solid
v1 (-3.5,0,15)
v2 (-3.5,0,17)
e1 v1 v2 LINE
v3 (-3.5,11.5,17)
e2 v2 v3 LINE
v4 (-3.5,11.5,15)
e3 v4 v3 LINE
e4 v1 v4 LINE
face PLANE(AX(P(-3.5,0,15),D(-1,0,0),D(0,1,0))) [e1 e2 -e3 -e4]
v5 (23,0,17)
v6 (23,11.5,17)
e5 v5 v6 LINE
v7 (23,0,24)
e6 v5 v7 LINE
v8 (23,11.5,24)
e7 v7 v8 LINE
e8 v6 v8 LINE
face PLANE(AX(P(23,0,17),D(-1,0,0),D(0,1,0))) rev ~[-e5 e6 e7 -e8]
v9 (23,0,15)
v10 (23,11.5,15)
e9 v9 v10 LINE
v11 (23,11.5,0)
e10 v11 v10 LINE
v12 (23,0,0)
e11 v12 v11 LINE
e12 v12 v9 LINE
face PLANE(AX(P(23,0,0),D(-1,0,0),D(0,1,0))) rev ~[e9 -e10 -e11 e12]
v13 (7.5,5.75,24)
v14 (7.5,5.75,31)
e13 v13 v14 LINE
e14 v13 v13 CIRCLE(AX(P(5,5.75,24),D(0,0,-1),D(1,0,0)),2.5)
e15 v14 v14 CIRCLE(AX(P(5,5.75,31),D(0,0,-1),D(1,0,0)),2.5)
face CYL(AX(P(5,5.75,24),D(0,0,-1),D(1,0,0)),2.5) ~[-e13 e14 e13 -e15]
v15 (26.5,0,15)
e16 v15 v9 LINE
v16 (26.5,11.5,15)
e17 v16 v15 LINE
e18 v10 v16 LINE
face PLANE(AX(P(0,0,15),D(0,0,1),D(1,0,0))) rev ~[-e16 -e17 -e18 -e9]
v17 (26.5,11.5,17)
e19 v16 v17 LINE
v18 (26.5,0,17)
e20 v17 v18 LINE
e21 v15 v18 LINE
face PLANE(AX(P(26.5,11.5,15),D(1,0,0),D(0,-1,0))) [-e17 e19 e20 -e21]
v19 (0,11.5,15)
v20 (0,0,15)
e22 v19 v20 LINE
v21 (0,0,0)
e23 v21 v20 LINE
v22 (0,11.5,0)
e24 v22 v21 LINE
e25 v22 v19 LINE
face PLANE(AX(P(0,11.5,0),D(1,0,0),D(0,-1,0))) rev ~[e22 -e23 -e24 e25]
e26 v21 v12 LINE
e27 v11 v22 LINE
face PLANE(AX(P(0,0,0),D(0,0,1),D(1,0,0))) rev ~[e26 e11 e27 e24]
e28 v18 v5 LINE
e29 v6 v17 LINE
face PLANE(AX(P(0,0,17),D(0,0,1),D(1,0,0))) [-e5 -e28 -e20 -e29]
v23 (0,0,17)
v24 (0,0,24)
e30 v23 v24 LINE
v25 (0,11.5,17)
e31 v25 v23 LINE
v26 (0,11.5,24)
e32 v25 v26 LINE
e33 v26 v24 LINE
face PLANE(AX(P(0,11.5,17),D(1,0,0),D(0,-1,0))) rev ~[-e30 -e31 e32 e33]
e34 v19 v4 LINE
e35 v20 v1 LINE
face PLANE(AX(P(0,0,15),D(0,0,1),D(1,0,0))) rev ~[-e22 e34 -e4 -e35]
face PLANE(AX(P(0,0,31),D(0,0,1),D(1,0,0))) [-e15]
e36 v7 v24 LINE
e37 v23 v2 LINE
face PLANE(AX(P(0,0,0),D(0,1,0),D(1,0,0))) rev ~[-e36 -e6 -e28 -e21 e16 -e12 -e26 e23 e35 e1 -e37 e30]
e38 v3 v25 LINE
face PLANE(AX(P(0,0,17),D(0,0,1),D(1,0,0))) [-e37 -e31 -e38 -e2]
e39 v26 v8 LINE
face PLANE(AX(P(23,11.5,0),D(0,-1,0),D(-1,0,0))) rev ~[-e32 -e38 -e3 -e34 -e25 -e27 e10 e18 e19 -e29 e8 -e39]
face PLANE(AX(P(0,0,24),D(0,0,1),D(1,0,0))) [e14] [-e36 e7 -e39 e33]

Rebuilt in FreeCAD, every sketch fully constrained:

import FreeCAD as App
import Part
import Sketcher
from FreeCAD import Vector
Q = App.Units.Quantity

doc = App.newDocument("Part")
params = doc.addObject("Spreadsheet::Sheet", "Params")
for row, (alias, value) in enumerate([
    ("sketch1_width", "23 mm"),
    ("sketch1_height", "11.5 mm"),
    ("pad1_length", "15 mm"),
    ("sketch2_width", "30 mm"),
    ("sketch2_height", "11.5 mm"),
    ("pad2_length", "2 mm"),
    ("sketch3_width", "23 mm"),
    ("sketch3_height", "11.5 mm"),
    ("pad3_length", "7 mm"),
    ("sketch4_diameter", "5 mm"),
    ("pad4_length", "7 mm"),
], start=1):
    params.set(f"A{row}", alias)
    params.set(f"B{row}", "=" + value)
    params.setAlias(f"B{row}", alias)

body = doc.addObject("PartDesign::Body", "Body")

# Sketch on XY plane
sketch1 = body.newObject("Sketcher::SketchObject", "Sketch")
sketch1.AttachmentSupport = (doc.getObject("XY_Plane"), [""])
sketch1.MapMode = "FlatFace"
sketch1.addGeometry(Part.LineSegment(Vector(0, 11.5, 0), Vector(0, 0, 0)), False)
sketch1.addGeometry(Part.LineSegment(Vector(0, 0, 0), Vector(23, 0, 0)), False)
sketch1.addGeometry(Part.LineSegment(Vector(23, 0, 0), Vector(23, 11.5, 0)), False)
sketch1.addGeometry(Part.LineSegment(Vector(23, 11.5, 0), Vector(0, 11.5, 0)), False)
sketch1.addConstraint(Sketcher.Constraint("Coincident", 0, 2, 1, 1))
sketch1.addConstraint(Sketcher.Constraint("Coincident", 1, 2, 2, 1))
sketch1.addConstraint(Sketcher.Constraint("Coincident", 2, 2, 3, 1))
sketch1.addConstraint(Sketcher.Constraint("Coincident", 3, 2, 0, 1))
sketch1.addConstraint(Sketcher.Constraint("Vertical", 0))
sketch1.addConstraint(Sketcher.Constraint("Horizontal", 1))
sketch1.addConstraint(Sketcher.Constraint("Vertical", 2))
sketch1.addConstraint(Sketcher.Constraint("Horizontal", 3))
sketch1.addConstraint(Sketcher.Constraint("Coincident", 0, 2, -1, 1))
sketch1.addConstraint(Sketcher.Constraint("DistanceX", 1, 1, 1, 2, Q("23 mm")))
sketch1.addConstraint(Sketcher.Constraint("DistanceY", 0, 2, 0, 1, Q("11.5 mm")))
sketch1.setExpression("Constraints[9]", "Params.sketch1_width")
sketch1.setExpression("Constraints[10]", "Params.sketch1_height")
pad1 = body.newObject("PartDesign::Pad", "Pad")
pad1.Profile = sketch1
pad1.setExpression("Length", "Params.pad1_length")

# Sketch on XY plane
sketch2 = body.newObject("Sketcher::SketchObject", "Sketch001")
sketch2.AttachmentSupport = (doc.getObject("XY_Plane"), [""])
sketch2.MapMode = "FlatFace"
sketch2.AttachmentOffset = App.Placement(Vector(0, 0, 15), App.Rotation())
sketch2.addGeometry(Part.LineSegment(Vector(26.5, 11.5, 0), Vector(-3.5, 11.5, 0)), False)
sketch2.addGeometry(Part.LineSegment(Vector(-3.5, 11.5, 0), Vector(-3.5, 0, 0)), False)
sketch2.addGeometry(Part.LineSegment(Vector(-3.5, 0, 0), Vector(26.5, 0, 0)), False)
sketch2.addGeometry(Part.LineSegment(Vector(26.5, 0, 0), Vector(26.5, 11.5, 0)), False)
sketch2.addConstraint(Sketcher.Constraint("Coincident", 0, 2, 1, 1))
sketch2.addConstraint(Sketcher.Constraint("Coincident", 1, 2, 2, 1))
sketch2.addConstraint(Sketcher.Constraint("Coincident", 2, 2, 3, 1))
sketch2.addConstraint(Sketcher.Constraint("Coincident", 3, 2, 0, 1))
sketch2.addConstraint(Sketcher.Constraint("Horizontal", 0))
sketch2.addConstraint(Sketcher.Constraint("Vertical", 1))
sketch2.addConstraint(Sketcher.Constraint("Horizontal", 2))
sketch2.addConstraint(Sketcher.Constraint("Vertical", 3))
sketch2.addConstraint(Sketcher.Constraint("PointOnObject", 1, 2, -1))
sketch2.addConstraint(Sketcher.Constraint("DistanceX", 0, 2, 0, 1, Q("30 mm")))
sketch2.addConstraint(Sketcher.Constraint("DistanceX", 0, 2, -1, 1, Q("3.5 mm")))
sketch2.addConstraint(Sketcher.Constraint("DistanceY", 1, 2, 1, 1, Q("11.5 mm")))
sketch2.setExpression("Constraints[9]", "Params.sketch2_width")
sketch2.setExpression("Constraints[11]", "Params.sketch2_height")
pad2 = body.newObject("PartDesign::Pad", "Pad001")
pad2.Profile = sketch2
pad2.setExpression("Length", "Params.pad2_length")

# Sketch on XY plane
sketch3 = body.newObject("Sketcher::SketchObject", "Sketch002")
sketch3.AttachmentSupport = (doc.getObject("XY_Plane"), [""])
sketch3.MapMode = "FlatFace"
sketch3.AttachmentOffset = App.Placement(Vector(0, 0, 17), App.Rotation())
sketch3.addGeometry(Part.LineSegment(Vector(23, 11.5, 0), Vector(0, 11.5, 0)), False)
sketch3.addGeometry(Part.LineSegment(Vector(0, 11.5, 0), Vector(0, 0, 0)), False)
sketch3.addGeometry(Part.LineSegment(Vector(0, 0, 0), Vector(23, 0, 0)), False)
sketch3.addGeometry(Part.LineSegment(Vector(23, 0, 0), Vector(23, 11.5, 0)), False)
sketch3.addConstraint(Sketcher.Constraint("Coincident", 0, 2, 1, 1))
sketch3.addConstraint(Sketcher.Constraint("Coincident", 1, 2, 2, 1))
sketch3.addConstraint(Sketcher.Constraint("Coincident", 2, 2, 3, 1))
sketch3.addConstraint(Sketcher.Constraint("Coincident", 3, 2, 0, 1))
sketch3.addConstraint(Sketcher.Constraint("Horizontal", 0))
sketch3.addConstraint(Sketcher.Constraint("Vertical", 1))
sketch3.addConstraint(Sketcher.Constraint("Horizontal", 2))
sketch3.addConstraint(Sketcher.Constraint("Vertical", 3))
sketch3.addConstraint(Sketcher.Constraint("Coincident", 1, 2, -1, 1))
sketch3.addConstraint(Sketcher.Constraint("DistanceX", 0, 2, 0, 1, Q("23 mm")))
sketch3.addConstraint(Sketcher.Constraint("DistanceY", 1, 2, 1, 1, Q("11.5 mm")))
sketch3.setExpression("Constraints[9]", "Params.sketch3_width")
sketch3.setExpression("Constraints[10]", "Params.sketch3_height")
pad3 = body.newObject("PartDesign::Pad", "Pad002")
pad3.Profile = sketch3
pad3.setExpression("Length", "Params.pad3_length")

# Sketch on XY plane
sketch4 = body.newObject("Sketcher::SketchObject", "Sketch003")
sketch4.AttachmentSupport = (doc.getObject("XY_Plane"), [""])
sketch4.MapMode = "FlatFace"
sketch4.AttachmentOffset = App.Placement(Vector(0, 0, 24), App.Rotation())
sketch4.addGeometry(Part.Circle(Vector(5, 5.75, 0), Vector(0, 0, 1), 2.5), False)
sketch4.addConstraint(Sketcher.Constraint("Diameter", 0, Q("5 mm")))
sketch4.addConstraint(Sketcher.Constraint("DistanceX", -1, 1, 0, 3, Q("5 mm")))
sketch4.addConstraint(Sketcher.Constraint("DistanceY", -1, 1, 0, 3, Q("5.75 mm")))
sketch4.setExpression("Constraints[0]", "Params.sketch4_diameter")
pad4 = body.newObject("PartDesign::Pad", "Pad003")
pad4.Profile = sketch4
pad4.setExpression("Length", "Params.pad4_length")

doc.recompute()
